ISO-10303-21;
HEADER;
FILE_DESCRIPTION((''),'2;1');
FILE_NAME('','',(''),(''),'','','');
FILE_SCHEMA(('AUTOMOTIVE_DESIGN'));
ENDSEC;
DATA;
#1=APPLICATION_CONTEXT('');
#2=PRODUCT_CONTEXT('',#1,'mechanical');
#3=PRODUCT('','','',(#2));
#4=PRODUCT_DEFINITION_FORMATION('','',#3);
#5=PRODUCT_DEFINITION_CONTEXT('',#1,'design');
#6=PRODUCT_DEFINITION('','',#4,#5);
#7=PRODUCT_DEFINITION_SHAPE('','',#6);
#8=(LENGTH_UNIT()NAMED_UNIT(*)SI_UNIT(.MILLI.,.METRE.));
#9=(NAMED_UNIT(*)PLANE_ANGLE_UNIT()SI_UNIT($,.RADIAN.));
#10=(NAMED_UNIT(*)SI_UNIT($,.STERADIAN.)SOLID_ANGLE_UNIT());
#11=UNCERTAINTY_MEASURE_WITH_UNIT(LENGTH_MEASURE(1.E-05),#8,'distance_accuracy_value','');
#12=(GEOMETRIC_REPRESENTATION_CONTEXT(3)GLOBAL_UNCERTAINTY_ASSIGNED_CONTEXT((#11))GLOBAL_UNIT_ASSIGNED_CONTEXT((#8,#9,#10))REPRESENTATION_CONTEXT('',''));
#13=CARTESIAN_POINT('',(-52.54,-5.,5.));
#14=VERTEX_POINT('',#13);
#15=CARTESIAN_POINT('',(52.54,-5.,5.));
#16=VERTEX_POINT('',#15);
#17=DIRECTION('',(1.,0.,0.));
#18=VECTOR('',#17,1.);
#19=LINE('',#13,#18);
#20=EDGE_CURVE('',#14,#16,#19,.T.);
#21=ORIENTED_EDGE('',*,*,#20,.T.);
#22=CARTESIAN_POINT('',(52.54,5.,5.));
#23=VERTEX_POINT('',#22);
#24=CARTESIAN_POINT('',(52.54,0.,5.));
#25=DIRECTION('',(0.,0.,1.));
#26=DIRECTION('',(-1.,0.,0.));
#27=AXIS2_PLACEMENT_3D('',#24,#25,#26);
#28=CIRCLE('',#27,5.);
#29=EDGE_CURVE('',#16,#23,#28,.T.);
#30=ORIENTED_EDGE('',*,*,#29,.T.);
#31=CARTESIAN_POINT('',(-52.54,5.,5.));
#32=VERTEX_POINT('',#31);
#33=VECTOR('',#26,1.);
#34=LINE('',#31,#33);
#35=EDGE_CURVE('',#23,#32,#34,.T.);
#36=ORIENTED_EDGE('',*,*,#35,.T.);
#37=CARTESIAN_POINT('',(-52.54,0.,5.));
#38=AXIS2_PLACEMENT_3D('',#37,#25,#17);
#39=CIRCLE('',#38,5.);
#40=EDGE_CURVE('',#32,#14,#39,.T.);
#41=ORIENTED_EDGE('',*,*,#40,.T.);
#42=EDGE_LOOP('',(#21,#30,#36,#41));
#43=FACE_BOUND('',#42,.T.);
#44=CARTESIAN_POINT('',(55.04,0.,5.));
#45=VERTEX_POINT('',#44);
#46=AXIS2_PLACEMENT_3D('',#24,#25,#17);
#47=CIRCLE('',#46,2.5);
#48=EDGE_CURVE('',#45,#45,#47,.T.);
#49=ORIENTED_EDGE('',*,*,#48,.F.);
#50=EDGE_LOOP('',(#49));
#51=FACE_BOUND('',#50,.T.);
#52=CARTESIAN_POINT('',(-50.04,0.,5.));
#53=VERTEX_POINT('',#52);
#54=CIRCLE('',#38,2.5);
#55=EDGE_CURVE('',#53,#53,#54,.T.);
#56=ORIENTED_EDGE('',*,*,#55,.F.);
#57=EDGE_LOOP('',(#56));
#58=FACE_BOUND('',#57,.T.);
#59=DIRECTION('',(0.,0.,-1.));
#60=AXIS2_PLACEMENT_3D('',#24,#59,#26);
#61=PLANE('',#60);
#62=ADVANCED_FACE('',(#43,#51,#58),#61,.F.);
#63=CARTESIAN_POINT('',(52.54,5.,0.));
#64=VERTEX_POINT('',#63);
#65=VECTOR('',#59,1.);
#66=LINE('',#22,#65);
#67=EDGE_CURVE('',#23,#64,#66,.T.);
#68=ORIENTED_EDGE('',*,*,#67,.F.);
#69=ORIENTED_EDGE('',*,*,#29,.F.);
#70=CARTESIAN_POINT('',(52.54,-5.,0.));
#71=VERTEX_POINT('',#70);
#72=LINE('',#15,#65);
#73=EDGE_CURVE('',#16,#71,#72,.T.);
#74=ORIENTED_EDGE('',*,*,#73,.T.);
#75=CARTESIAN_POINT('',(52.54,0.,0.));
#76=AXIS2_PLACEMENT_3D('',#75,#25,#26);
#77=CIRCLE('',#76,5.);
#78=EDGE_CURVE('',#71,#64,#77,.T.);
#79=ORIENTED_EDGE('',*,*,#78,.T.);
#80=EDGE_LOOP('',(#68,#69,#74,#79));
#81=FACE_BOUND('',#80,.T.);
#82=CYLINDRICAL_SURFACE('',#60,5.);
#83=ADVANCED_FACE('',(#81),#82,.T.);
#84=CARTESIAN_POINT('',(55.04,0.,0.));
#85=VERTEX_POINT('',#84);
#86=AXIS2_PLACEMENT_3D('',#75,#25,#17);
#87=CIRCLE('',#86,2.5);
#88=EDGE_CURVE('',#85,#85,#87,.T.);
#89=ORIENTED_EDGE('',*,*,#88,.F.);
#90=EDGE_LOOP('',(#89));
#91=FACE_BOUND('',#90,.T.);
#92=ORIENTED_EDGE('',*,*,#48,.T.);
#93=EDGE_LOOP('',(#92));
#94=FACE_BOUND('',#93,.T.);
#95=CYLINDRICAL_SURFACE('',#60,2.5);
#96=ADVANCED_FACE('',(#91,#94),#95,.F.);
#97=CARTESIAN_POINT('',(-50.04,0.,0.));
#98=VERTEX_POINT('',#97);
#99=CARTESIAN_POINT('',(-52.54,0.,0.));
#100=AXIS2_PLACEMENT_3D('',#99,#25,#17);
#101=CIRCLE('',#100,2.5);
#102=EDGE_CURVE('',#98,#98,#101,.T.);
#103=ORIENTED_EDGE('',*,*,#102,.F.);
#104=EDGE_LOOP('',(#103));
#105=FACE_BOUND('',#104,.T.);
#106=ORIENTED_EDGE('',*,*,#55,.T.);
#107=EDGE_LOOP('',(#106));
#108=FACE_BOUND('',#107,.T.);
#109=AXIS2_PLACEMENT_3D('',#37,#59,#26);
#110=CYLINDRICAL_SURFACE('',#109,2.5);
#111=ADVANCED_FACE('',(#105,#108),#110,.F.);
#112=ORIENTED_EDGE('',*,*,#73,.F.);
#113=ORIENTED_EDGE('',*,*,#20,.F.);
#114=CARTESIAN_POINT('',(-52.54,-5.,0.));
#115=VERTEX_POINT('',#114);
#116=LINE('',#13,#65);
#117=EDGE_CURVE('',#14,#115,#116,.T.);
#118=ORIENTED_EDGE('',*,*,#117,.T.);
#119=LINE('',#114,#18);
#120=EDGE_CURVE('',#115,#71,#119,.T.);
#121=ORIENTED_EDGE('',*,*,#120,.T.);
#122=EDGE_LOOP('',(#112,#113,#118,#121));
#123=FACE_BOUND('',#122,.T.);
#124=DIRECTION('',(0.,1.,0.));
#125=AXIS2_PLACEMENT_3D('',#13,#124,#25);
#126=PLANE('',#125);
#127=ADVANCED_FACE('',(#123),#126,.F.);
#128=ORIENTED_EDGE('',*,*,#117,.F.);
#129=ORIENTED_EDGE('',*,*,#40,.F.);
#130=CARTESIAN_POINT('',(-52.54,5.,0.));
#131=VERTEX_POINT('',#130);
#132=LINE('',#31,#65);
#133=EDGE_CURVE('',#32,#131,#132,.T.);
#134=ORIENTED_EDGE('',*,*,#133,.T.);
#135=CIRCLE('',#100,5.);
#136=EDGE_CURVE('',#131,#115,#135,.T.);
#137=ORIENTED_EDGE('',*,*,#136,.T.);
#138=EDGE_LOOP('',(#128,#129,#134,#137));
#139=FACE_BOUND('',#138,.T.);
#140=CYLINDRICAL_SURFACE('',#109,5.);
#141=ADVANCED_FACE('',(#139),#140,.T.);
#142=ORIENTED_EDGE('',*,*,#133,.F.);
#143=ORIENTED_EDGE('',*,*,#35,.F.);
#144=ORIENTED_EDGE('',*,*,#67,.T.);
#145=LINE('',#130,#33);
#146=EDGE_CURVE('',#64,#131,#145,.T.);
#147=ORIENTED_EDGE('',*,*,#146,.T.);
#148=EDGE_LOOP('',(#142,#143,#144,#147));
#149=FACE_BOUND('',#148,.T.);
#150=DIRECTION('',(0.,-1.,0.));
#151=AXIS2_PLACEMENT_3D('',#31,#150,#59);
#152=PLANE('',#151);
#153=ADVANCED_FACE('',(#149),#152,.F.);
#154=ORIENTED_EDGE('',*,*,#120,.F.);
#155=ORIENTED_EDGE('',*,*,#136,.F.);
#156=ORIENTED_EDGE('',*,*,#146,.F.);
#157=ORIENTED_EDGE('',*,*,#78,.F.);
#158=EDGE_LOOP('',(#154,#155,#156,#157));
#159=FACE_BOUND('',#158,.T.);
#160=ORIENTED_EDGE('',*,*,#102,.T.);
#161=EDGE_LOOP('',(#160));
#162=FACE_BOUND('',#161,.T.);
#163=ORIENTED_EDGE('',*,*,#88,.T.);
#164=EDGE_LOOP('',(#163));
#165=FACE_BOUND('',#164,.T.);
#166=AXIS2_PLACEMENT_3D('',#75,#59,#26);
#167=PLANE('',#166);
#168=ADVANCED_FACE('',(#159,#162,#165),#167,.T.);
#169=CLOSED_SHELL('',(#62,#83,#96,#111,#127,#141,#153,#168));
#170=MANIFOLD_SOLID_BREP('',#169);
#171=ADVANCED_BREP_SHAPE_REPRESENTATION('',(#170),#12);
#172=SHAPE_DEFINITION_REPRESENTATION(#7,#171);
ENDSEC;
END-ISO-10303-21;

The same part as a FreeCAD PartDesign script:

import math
import FreeCAD as App
import Part
import Sketcher
Q = App.Units.Quantity

doc = App.newDocument("Part")
body = doc.addObject("PartDesign::Body", "Body")

sketch1 = body.newObject("Sketcher::SketchObject", "Sketch")
sketch1.AttachmentSupport = (doc.getObject("XY_Plane"), [""])
sketch1.MapMode = "FlatFace"
sketch1.addGeometry([
    Part.LineSegment(App.Vector(52.54, 5, 0), App.Vector(-52.54, 5, 0)),
    Part.ArcOfCircle(Part.Circle(App.Vector(-52.54, 0, 0), App.Vector(0, 0, 1), 5), math.radians(90), math.radians(270)),
    Part.LineSegment(App.Vector(-52.54, -5, 0), App.Vector(52.54, -5, 0)),
    Part.ArcOfCircle(Part.Circle(App.Vector(52.54, 0, 0), App.Vector(0, 0, 1), 5), math.radians(-90), math.radians(90)),
    Part.Circle(App.Vector(52.54, 0, 0), App.Vector(0, 0, 1), 2.5),
    Part.Circle(App.Vector(-52.54, 0, 0), App.Vector(0, 0, 1), 2.5),
], False)
sketch1.addConstraint([
    Sketcher.Constraint("Tangent", 0, 2, 1, 1),
    Sketcher.Constraint("Tangent", 1, 2, 2, 1),
    Sketcher.Constraint("Tangent", 2, 2, 3, 1),
    Sketcher.Constraint("Tangent", 3, 2, 0, 1),
    Sketcher.Constraint("Horizontal", 0),
    Sketcher.Constraint("Horizontal", 2),
    Sketcher.Constraint("Coincident", 4, 3, 3, 3),
    Sketcher.Constraint("Coincident", 5, 3, 1, 3),
    Sketcher.Constraint("Equal", 4, 5),
    Sketcher.Constraint("Symmetric", 1, 3, 3, 3, -1, 1),
    Sketcher.Constraint("Diameter", 4, Q("5 mm")),
    Sketcher.Constraint("Radius", 1, Q("5 mm")),
    Sketcher.Constraint("DistanceX", 0, 2, 0, 1, Q("105.08 mm")),
])
pad1 = body.newObject("PartDesign::Pad", "Pad")
pad1.Profile = sketch1
pad1.Length = 5

doc.recompute()
